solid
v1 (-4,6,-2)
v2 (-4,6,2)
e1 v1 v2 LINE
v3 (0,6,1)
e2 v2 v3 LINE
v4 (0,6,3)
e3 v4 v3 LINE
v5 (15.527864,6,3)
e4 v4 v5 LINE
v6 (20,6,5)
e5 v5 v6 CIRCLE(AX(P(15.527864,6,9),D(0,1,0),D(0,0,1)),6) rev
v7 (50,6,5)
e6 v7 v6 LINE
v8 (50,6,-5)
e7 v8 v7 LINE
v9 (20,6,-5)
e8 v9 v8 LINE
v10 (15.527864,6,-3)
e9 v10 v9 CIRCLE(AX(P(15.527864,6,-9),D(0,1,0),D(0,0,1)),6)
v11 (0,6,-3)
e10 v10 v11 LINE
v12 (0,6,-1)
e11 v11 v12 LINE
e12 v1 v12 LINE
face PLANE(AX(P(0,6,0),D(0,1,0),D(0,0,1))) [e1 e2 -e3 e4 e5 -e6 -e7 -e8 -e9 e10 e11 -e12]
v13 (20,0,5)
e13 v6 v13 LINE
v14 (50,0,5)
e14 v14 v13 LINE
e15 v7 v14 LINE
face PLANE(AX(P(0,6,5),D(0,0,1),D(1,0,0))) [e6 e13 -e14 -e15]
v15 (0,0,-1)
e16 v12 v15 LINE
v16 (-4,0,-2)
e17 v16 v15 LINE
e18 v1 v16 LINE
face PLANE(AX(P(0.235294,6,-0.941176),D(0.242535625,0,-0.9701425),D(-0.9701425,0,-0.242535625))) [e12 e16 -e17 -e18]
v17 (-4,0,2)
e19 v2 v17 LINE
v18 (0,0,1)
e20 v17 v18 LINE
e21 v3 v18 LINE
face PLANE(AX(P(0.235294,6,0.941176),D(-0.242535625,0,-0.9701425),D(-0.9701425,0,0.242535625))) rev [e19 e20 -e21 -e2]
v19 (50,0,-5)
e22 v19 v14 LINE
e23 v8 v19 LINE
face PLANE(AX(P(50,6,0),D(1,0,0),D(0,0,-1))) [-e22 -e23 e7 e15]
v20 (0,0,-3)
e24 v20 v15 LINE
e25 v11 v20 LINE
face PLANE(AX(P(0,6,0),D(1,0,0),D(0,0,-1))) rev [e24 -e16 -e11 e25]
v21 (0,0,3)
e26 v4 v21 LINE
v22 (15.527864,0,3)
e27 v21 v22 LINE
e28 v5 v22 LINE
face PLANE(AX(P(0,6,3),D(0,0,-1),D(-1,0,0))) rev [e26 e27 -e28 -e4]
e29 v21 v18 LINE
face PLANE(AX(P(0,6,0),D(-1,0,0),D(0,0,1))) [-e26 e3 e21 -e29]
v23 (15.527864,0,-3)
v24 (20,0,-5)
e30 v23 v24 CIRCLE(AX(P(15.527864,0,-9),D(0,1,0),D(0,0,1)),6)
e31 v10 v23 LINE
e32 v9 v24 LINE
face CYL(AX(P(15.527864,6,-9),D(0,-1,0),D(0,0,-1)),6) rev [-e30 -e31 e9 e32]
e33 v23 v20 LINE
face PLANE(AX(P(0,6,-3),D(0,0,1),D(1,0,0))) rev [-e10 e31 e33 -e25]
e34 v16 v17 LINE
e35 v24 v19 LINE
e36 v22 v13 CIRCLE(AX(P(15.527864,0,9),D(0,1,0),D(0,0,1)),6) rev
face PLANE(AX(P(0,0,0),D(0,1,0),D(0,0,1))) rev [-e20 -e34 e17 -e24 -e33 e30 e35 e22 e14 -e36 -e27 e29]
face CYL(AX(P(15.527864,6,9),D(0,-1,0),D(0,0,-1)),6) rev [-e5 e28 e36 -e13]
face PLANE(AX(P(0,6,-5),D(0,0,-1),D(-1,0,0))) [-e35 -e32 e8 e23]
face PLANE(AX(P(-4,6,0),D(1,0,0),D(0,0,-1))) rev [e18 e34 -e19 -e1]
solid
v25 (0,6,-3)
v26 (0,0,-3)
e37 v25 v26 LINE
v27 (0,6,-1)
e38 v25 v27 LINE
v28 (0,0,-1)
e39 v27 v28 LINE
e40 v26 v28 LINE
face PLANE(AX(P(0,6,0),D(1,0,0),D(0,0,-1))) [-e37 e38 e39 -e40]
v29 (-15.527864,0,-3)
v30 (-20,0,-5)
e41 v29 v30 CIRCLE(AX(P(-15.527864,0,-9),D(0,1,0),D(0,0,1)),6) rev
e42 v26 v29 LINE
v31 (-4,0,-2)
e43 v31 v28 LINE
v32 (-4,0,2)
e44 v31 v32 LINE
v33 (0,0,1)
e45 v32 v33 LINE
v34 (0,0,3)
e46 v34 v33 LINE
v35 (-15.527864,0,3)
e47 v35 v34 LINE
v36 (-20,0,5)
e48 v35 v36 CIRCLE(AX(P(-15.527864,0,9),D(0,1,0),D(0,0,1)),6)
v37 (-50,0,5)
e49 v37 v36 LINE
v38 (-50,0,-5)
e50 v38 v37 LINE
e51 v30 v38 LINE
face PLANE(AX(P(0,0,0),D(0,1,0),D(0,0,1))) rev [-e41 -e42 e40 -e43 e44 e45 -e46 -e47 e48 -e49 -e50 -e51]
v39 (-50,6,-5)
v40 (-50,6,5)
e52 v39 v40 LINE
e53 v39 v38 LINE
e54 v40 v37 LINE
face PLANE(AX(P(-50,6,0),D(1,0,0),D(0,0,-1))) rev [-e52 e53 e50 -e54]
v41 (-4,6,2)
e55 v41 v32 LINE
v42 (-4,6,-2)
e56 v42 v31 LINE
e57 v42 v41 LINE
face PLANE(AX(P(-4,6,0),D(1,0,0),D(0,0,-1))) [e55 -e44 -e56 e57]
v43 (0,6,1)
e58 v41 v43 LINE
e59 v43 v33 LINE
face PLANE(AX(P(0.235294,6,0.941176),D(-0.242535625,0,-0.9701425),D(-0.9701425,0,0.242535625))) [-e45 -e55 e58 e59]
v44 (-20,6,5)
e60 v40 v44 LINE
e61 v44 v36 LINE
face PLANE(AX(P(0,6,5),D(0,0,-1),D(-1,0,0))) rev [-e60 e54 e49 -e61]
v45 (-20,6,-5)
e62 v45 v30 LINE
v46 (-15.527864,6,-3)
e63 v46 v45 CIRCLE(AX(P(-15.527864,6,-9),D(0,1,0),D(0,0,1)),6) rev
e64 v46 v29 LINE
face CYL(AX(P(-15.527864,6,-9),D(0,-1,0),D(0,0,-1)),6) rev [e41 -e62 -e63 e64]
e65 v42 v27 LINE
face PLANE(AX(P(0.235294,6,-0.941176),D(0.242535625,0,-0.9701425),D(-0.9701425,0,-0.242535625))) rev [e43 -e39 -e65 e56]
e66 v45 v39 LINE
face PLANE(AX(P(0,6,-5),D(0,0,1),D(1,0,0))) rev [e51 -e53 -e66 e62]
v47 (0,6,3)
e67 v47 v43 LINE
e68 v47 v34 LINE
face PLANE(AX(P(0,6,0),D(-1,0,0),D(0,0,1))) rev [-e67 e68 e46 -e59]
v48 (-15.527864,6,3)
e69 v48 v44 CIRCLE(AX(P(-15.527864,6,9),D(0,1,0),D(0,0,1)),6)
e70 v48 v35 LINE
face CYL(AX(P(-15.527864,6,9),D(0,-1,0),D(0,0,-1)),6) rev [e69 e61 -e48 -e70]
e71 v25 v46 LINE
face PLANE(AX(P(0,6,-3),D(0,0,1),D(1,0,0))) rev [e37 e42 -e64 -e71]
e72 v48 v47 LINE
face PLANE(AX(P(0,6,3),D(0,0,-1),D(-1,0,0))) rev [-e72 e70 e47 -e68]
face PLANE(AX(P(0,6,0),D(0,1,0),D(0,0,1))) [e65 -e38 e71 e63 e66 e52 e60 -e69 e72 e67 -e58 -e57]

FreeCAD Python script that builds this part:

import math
import FreeCAD as App
import Part
import Sketcher

V = App.Vector

doc = App.newDocument("Part")
body = doc.addObject("PartDesign::Body", "Body")

# Sketch on XZ plane
sketch1 = body.newObject("Sketcher::SketchObject", "Sketch")
sketch1.AttachmentSupport = (doc.getObject("XZ_Plane"), [""])
sketch1.MapMode = "FlatFace"
sketch1.addGeometry(Part.LineSegment(V(0, -1, 0), V(0, -3, 0)), False)
sketch1.addGeometry(Part.LineSegment(V(0, -3, 0), V(-15.5, -3, 0)), False)
sketch1.addGeometry(Part.ArcOfCircle(Part.Circle(V(-15.5, -9, 0), V(0, 0, 1), 6), math.radians(90), math.radians(138)), False)
sketch1.addGeometry(Part.LineSegment(V(-20, -5, 0), V(-50, -5, 0)), False)
sketch1.addGeometry(Part.LineSegment(V(-50, -5, 0), V(-50, 5, 0)), False)
sketch1.addGeometry(Part.LineSegment(V(-50, 5, 0), V(-20, 5, 0)), False)
sketch1.addGeometry(Part.ArcOfCircle(Part.Circle(V(-15.5, 9, 0), V(0, 0, 1), 6), math.radians(-138), math.radians(-90)), False)
sketch1.addGeometry(Part.LineSegment(V(-15.5, 3, 0), V(0, 3, 0)), False)
sketch1.addGeometry(Part.LineSegment(V(0, 3, 0), V(0, 1, 0)), False)
sketch1.addGeometry(Part.LineSegment(V(0, 1, 0), V(-4, 2, 0)), False)
sketch1.addGeometry(Part.LineSegment(V(-4, 2, 0), V(-4, -2, 0)), False)
sketch1.addGeometry(Part.LineSegment(V(-4, -2, 0), V(0, -1, 0)), False)
sketch1.addConstraint(Sketcher.Constraint("Coincident", 0, 2, 1, 1))
sketch1.addConstraint(Sketcher.Constraint("Tangent", 1, 2, 2, 1))
sketch1.addConstraint(Sketcher.Constraint("Coincident", 2, 2, 3, 1))
sketch1.addConstraint(Sketcher.Constraint("Coincident", 3, 2, 4, 1))
sketch1.addConstraint(Sketcher.Constraint("Coincident", 4, 2, 5, 1))
sketch1.addConstraint(Sketcher.Constraint("Coincident", 5, 2, 6, 1))
sketch1.addConstraint(Sketcher.Constraint("Tangent", 6, 2, 7, 1))
sketch1.addConstraint(Sketcher.Constraint("Coincident", 7, 2, 8, 1))
sketch1.addConstraint(Sketcher.Constraint("Coincident", 8, 2, 9, 1))
sketch1.addConstraint(Sketcher.Constraint("Coincident", 9, 2, 10, 1))
sketch1.addConstraint(Sketcher.Constraint("Coincident", 10, 2, 11, 1))
sketch1.addConstraint(Sketcher.Constraint("Coincident", 11, 2, 0, 1))
sketch1.addConstraint(Sketcher.Constraint("Vertical", 0))
sketch1.addConstraint(Sketcher.Constraint("Horizontal", 1))
sketch1.addConstraint(Sketcher.Constraint("Horizontal", 3))
sketch1.addConstraint(Sketcher.Constraint("Vertical", 4))
sketch1.addConstraint(Sketcher.Constraint("Horizontal", 5))
sketch1.addConstraint(Sketcher.Constraint("Horizontal", 7))
sketch1.addConstraint(Sketcher.Constraint("Vertical", 8))
sketch1.addConstraint(Sketcher.Constraint("Vertical", 10))
sketch1.addConstraint(Sketcher.Constraint("Equal", 2, 6))
sketch1.addConstraint(Sketcher.Constraint("Symmetric", 0, 2, 7, 2, -1, 1))
sketch1.addConstraint(Sketcher.Constraint("Symmetric", 2, 2, 5, 2, -1))
sketch1.addConstraint(Sketcher.Constraint("Symmetric", 8, 2, 11, 2, -1))
sketch1.addConstraint(Sketcher.Constraint("Equal", 9, 11))
sketch1.addConstraint(Sketcher.Constraint("Radius", 2, 6.0))
sketch1.addConstraint(Sketcher.Constraint("DistanceX", 3, 2, 3, 1, 30.0))
sketch1.addConstraint(Sketcher.Constraint("DistanceY", 0, 2, 0, 1, 2.0))
sketch1.addConstraint(Sketcher.Constraint("DistanceY", 4, 1, 4, 2, 10.0))
sketch1.addConstraint(Sketcher.Constraint("DistanceY", 10, 2, 10, 1, 4.0))
sketch1.addConstraint(Sketcher.Constraint("DistanceY", 2, 3, -1, 1, 9.0))
sketch1.addConstraint(Sketcher.Constraint("DistanceX", 2, 2, -1, 1, 20.0))
sketch1.addConstraint(Sketcher.Constraint("DistanceX", 9, 2, -1, 1, 4.0))
pad1 = body.newObject("PartDesign::Pad", "Pad")
pad1.Profile = sketch1
pad1.Length = 6
pad1.Reversed = True
body2 = doc.addObject("PartDesign::Body", "Body001")

# Sketch on XZ plane
sketch2 = body2.newObject("Sketcher::SketchObject", "Sketch001")
sketch2.AttachmentSupport = (doc.getObject("XZ_Plane001"), [""])
sketch2.MapMode = "FlatFace"
sketch2.addGeometry(Part.ArcOfCircle(Part.Circle(V(15.5, -9, 0), V(0, 0, 1), 6), math.radians(42), math.radians(90)), False)
sketch2.addGeometry(Part.LineSegment(V(15.5, -3, 0), V(0, -3, 0)), False)
sketch2.addGeometry(Part.LineSegment(V(0, -3, 0), V(0, -1, 0)), False)
sketch2.addGeometry(Part.LineSegment(V(0, -1, 0), V(-4, -2, 0)), False)
sketch2.addGeometry(Part.LineSegment(V(-4, -2, 0), V(-4, 2, 0)), False)
sketch2.addGeometry(Part.LineSegment(V(-4, 2, 0), V(0, 1, 0)), False)
sketch2.addGeometry(Part.LineSegment(V(0, 1, 0), V(0, 3, 0)), False)
sketch2.addGeometry(Part.LineSegment(V(0, 3, 0), V(15.5, 3, 0)), False)
sketch2.addGeometry(Part.ArcOfCircle(Part.Circle(V(15.5, 9, 0), V(0, 0, 1), 6), math.radians(-90), math.radians(-42)), False)
sketch2.addGeometry(Part.LineSegment(V(20, 5, 0), V(50, 5, 0)), False)
sketch2.addGeometry(Part.LineSegment(V(50, 5, 0), V(50, -5, 0)), False)
sketch2.addGeometry(Part.LineSegment(V(50, -5, 0), V(20, -5, 0)), False)
sketch2.addConstraint(Sketcher.Constraint("Tangent", 0, 2, 1, 1))
sketch2.addConstraint(Sketcher.Constraint("Coincident", 1, 2, 2, 1))
sketch2.addConstraint(Sketcher.Constraint("Coincident", 2, 2, 3, 1))
sketch2.addConstraint(Sketcher.Constraint("Coincident", 3, 2, 4, 1))
sketch2.addConstraint(Sketcher.Constraint("Coincident", 4, 2, 5, 1))
sketch2.addConstraint(Sketcher.Constraint("Coincident", 5, 2, 6, 1))
sketch2.addConstraint(Sketcher.Constraint("Coincident", 6, 2, 7, 1))
sketch2.addConstraint(Sketcher.Constraint("Tangent", 7, 2, 8, 1))
sketch2.addConstraint(Sketcher.Constraint("Coincident", 8, 2, 9, 1))
sketch2.addConstraint(Sketcher.Constraint("Coincident", 9, 2, 10, 1))
sketch2.addConstraint(Sketcher.Constraint("Coincident", 10, 2, 11, 1))
sketch2.addConstraint(Sketcher.Constraint("Coincident", 11, 2, 0, 1))
sketch2.addConstraint(Sketcher.Constraint("Horizontal", 1))
sketch2.addConstraint(Sketcher.Constraint("Vertical", 2))
sketch2.addConstraint(Sketcher.Constraint("Vertical", 4))
sketch2.addConstraint(Sketcher.Constraint("Vertical", 6))
sketch2.addConstraint(Sketcher.Constraint("Horizontal", 7))
sketch2.addConstraint(Sketcher.Constraint("Horizontal", 9))
sketch2.addConstraint(Sketcher.Constraint("Vertical", 10))
sketch2.addConstraint(Sketcher.Constraint("Horizontal", 11))
sketch2.addConstraint(Sketcher.Constraint("Equal", 0, 8))
sketch2.addConstraint(Sketcher.Constraint("Symmetric", 2, 2, 5, 2, -1, 1))
sketch2.addConstraint(Sketcher.Constraint("Symmetric", 0, 3, 8, 3, -1))
sketch2.addConstraint(Sketcher.Constraint("PointOnObject", 1, 2, -2))
sketch2.addConstraint(Sketcher.Constraint("Vertical", 8, 2, 11, 2))
sketch2.addConstraint(Sketcher.Constraint("Equal", 3, 5))
sketch2.addConstraint(Sketcher.Constraint("Radius", 0, 6.0))
sketch2.addConstraint(Sketcher.Constraint("DistanceX", 9, 1, 9, 2, 30.0))
sketch2.addConstraint(Sketcher.Constraint("DistanceY", 2, 1, 2, 2, 2.0))
sketch2.addConstraint(Sketcher.Constraint("DistanceY", 4, 1, 4, 2, 4.0))
sketch2.addConstraint(Sketcher.Constraint("DistanceY", 10, 2, 10, 1, 10.0))
sketch2.addConstraint(Sketcher.Constraint("DistanceY", 0, 3, -1, 1, 9.0))
sketch2.addConstraint(Sketcher.Constraint("DistanceX", 3, 2, -1, 1, 4.0))
sketch2.addConstraint(Sketcher.Constraint("DistanceX", -1, 1, 8, 2, 20.0))
pad2 = body2.newObject("PartDesign::Pad", "Pad001")
pad2.Profile = sketch2
pad2.Length = 6
pad2.Reversed = True

doc.recompute()
